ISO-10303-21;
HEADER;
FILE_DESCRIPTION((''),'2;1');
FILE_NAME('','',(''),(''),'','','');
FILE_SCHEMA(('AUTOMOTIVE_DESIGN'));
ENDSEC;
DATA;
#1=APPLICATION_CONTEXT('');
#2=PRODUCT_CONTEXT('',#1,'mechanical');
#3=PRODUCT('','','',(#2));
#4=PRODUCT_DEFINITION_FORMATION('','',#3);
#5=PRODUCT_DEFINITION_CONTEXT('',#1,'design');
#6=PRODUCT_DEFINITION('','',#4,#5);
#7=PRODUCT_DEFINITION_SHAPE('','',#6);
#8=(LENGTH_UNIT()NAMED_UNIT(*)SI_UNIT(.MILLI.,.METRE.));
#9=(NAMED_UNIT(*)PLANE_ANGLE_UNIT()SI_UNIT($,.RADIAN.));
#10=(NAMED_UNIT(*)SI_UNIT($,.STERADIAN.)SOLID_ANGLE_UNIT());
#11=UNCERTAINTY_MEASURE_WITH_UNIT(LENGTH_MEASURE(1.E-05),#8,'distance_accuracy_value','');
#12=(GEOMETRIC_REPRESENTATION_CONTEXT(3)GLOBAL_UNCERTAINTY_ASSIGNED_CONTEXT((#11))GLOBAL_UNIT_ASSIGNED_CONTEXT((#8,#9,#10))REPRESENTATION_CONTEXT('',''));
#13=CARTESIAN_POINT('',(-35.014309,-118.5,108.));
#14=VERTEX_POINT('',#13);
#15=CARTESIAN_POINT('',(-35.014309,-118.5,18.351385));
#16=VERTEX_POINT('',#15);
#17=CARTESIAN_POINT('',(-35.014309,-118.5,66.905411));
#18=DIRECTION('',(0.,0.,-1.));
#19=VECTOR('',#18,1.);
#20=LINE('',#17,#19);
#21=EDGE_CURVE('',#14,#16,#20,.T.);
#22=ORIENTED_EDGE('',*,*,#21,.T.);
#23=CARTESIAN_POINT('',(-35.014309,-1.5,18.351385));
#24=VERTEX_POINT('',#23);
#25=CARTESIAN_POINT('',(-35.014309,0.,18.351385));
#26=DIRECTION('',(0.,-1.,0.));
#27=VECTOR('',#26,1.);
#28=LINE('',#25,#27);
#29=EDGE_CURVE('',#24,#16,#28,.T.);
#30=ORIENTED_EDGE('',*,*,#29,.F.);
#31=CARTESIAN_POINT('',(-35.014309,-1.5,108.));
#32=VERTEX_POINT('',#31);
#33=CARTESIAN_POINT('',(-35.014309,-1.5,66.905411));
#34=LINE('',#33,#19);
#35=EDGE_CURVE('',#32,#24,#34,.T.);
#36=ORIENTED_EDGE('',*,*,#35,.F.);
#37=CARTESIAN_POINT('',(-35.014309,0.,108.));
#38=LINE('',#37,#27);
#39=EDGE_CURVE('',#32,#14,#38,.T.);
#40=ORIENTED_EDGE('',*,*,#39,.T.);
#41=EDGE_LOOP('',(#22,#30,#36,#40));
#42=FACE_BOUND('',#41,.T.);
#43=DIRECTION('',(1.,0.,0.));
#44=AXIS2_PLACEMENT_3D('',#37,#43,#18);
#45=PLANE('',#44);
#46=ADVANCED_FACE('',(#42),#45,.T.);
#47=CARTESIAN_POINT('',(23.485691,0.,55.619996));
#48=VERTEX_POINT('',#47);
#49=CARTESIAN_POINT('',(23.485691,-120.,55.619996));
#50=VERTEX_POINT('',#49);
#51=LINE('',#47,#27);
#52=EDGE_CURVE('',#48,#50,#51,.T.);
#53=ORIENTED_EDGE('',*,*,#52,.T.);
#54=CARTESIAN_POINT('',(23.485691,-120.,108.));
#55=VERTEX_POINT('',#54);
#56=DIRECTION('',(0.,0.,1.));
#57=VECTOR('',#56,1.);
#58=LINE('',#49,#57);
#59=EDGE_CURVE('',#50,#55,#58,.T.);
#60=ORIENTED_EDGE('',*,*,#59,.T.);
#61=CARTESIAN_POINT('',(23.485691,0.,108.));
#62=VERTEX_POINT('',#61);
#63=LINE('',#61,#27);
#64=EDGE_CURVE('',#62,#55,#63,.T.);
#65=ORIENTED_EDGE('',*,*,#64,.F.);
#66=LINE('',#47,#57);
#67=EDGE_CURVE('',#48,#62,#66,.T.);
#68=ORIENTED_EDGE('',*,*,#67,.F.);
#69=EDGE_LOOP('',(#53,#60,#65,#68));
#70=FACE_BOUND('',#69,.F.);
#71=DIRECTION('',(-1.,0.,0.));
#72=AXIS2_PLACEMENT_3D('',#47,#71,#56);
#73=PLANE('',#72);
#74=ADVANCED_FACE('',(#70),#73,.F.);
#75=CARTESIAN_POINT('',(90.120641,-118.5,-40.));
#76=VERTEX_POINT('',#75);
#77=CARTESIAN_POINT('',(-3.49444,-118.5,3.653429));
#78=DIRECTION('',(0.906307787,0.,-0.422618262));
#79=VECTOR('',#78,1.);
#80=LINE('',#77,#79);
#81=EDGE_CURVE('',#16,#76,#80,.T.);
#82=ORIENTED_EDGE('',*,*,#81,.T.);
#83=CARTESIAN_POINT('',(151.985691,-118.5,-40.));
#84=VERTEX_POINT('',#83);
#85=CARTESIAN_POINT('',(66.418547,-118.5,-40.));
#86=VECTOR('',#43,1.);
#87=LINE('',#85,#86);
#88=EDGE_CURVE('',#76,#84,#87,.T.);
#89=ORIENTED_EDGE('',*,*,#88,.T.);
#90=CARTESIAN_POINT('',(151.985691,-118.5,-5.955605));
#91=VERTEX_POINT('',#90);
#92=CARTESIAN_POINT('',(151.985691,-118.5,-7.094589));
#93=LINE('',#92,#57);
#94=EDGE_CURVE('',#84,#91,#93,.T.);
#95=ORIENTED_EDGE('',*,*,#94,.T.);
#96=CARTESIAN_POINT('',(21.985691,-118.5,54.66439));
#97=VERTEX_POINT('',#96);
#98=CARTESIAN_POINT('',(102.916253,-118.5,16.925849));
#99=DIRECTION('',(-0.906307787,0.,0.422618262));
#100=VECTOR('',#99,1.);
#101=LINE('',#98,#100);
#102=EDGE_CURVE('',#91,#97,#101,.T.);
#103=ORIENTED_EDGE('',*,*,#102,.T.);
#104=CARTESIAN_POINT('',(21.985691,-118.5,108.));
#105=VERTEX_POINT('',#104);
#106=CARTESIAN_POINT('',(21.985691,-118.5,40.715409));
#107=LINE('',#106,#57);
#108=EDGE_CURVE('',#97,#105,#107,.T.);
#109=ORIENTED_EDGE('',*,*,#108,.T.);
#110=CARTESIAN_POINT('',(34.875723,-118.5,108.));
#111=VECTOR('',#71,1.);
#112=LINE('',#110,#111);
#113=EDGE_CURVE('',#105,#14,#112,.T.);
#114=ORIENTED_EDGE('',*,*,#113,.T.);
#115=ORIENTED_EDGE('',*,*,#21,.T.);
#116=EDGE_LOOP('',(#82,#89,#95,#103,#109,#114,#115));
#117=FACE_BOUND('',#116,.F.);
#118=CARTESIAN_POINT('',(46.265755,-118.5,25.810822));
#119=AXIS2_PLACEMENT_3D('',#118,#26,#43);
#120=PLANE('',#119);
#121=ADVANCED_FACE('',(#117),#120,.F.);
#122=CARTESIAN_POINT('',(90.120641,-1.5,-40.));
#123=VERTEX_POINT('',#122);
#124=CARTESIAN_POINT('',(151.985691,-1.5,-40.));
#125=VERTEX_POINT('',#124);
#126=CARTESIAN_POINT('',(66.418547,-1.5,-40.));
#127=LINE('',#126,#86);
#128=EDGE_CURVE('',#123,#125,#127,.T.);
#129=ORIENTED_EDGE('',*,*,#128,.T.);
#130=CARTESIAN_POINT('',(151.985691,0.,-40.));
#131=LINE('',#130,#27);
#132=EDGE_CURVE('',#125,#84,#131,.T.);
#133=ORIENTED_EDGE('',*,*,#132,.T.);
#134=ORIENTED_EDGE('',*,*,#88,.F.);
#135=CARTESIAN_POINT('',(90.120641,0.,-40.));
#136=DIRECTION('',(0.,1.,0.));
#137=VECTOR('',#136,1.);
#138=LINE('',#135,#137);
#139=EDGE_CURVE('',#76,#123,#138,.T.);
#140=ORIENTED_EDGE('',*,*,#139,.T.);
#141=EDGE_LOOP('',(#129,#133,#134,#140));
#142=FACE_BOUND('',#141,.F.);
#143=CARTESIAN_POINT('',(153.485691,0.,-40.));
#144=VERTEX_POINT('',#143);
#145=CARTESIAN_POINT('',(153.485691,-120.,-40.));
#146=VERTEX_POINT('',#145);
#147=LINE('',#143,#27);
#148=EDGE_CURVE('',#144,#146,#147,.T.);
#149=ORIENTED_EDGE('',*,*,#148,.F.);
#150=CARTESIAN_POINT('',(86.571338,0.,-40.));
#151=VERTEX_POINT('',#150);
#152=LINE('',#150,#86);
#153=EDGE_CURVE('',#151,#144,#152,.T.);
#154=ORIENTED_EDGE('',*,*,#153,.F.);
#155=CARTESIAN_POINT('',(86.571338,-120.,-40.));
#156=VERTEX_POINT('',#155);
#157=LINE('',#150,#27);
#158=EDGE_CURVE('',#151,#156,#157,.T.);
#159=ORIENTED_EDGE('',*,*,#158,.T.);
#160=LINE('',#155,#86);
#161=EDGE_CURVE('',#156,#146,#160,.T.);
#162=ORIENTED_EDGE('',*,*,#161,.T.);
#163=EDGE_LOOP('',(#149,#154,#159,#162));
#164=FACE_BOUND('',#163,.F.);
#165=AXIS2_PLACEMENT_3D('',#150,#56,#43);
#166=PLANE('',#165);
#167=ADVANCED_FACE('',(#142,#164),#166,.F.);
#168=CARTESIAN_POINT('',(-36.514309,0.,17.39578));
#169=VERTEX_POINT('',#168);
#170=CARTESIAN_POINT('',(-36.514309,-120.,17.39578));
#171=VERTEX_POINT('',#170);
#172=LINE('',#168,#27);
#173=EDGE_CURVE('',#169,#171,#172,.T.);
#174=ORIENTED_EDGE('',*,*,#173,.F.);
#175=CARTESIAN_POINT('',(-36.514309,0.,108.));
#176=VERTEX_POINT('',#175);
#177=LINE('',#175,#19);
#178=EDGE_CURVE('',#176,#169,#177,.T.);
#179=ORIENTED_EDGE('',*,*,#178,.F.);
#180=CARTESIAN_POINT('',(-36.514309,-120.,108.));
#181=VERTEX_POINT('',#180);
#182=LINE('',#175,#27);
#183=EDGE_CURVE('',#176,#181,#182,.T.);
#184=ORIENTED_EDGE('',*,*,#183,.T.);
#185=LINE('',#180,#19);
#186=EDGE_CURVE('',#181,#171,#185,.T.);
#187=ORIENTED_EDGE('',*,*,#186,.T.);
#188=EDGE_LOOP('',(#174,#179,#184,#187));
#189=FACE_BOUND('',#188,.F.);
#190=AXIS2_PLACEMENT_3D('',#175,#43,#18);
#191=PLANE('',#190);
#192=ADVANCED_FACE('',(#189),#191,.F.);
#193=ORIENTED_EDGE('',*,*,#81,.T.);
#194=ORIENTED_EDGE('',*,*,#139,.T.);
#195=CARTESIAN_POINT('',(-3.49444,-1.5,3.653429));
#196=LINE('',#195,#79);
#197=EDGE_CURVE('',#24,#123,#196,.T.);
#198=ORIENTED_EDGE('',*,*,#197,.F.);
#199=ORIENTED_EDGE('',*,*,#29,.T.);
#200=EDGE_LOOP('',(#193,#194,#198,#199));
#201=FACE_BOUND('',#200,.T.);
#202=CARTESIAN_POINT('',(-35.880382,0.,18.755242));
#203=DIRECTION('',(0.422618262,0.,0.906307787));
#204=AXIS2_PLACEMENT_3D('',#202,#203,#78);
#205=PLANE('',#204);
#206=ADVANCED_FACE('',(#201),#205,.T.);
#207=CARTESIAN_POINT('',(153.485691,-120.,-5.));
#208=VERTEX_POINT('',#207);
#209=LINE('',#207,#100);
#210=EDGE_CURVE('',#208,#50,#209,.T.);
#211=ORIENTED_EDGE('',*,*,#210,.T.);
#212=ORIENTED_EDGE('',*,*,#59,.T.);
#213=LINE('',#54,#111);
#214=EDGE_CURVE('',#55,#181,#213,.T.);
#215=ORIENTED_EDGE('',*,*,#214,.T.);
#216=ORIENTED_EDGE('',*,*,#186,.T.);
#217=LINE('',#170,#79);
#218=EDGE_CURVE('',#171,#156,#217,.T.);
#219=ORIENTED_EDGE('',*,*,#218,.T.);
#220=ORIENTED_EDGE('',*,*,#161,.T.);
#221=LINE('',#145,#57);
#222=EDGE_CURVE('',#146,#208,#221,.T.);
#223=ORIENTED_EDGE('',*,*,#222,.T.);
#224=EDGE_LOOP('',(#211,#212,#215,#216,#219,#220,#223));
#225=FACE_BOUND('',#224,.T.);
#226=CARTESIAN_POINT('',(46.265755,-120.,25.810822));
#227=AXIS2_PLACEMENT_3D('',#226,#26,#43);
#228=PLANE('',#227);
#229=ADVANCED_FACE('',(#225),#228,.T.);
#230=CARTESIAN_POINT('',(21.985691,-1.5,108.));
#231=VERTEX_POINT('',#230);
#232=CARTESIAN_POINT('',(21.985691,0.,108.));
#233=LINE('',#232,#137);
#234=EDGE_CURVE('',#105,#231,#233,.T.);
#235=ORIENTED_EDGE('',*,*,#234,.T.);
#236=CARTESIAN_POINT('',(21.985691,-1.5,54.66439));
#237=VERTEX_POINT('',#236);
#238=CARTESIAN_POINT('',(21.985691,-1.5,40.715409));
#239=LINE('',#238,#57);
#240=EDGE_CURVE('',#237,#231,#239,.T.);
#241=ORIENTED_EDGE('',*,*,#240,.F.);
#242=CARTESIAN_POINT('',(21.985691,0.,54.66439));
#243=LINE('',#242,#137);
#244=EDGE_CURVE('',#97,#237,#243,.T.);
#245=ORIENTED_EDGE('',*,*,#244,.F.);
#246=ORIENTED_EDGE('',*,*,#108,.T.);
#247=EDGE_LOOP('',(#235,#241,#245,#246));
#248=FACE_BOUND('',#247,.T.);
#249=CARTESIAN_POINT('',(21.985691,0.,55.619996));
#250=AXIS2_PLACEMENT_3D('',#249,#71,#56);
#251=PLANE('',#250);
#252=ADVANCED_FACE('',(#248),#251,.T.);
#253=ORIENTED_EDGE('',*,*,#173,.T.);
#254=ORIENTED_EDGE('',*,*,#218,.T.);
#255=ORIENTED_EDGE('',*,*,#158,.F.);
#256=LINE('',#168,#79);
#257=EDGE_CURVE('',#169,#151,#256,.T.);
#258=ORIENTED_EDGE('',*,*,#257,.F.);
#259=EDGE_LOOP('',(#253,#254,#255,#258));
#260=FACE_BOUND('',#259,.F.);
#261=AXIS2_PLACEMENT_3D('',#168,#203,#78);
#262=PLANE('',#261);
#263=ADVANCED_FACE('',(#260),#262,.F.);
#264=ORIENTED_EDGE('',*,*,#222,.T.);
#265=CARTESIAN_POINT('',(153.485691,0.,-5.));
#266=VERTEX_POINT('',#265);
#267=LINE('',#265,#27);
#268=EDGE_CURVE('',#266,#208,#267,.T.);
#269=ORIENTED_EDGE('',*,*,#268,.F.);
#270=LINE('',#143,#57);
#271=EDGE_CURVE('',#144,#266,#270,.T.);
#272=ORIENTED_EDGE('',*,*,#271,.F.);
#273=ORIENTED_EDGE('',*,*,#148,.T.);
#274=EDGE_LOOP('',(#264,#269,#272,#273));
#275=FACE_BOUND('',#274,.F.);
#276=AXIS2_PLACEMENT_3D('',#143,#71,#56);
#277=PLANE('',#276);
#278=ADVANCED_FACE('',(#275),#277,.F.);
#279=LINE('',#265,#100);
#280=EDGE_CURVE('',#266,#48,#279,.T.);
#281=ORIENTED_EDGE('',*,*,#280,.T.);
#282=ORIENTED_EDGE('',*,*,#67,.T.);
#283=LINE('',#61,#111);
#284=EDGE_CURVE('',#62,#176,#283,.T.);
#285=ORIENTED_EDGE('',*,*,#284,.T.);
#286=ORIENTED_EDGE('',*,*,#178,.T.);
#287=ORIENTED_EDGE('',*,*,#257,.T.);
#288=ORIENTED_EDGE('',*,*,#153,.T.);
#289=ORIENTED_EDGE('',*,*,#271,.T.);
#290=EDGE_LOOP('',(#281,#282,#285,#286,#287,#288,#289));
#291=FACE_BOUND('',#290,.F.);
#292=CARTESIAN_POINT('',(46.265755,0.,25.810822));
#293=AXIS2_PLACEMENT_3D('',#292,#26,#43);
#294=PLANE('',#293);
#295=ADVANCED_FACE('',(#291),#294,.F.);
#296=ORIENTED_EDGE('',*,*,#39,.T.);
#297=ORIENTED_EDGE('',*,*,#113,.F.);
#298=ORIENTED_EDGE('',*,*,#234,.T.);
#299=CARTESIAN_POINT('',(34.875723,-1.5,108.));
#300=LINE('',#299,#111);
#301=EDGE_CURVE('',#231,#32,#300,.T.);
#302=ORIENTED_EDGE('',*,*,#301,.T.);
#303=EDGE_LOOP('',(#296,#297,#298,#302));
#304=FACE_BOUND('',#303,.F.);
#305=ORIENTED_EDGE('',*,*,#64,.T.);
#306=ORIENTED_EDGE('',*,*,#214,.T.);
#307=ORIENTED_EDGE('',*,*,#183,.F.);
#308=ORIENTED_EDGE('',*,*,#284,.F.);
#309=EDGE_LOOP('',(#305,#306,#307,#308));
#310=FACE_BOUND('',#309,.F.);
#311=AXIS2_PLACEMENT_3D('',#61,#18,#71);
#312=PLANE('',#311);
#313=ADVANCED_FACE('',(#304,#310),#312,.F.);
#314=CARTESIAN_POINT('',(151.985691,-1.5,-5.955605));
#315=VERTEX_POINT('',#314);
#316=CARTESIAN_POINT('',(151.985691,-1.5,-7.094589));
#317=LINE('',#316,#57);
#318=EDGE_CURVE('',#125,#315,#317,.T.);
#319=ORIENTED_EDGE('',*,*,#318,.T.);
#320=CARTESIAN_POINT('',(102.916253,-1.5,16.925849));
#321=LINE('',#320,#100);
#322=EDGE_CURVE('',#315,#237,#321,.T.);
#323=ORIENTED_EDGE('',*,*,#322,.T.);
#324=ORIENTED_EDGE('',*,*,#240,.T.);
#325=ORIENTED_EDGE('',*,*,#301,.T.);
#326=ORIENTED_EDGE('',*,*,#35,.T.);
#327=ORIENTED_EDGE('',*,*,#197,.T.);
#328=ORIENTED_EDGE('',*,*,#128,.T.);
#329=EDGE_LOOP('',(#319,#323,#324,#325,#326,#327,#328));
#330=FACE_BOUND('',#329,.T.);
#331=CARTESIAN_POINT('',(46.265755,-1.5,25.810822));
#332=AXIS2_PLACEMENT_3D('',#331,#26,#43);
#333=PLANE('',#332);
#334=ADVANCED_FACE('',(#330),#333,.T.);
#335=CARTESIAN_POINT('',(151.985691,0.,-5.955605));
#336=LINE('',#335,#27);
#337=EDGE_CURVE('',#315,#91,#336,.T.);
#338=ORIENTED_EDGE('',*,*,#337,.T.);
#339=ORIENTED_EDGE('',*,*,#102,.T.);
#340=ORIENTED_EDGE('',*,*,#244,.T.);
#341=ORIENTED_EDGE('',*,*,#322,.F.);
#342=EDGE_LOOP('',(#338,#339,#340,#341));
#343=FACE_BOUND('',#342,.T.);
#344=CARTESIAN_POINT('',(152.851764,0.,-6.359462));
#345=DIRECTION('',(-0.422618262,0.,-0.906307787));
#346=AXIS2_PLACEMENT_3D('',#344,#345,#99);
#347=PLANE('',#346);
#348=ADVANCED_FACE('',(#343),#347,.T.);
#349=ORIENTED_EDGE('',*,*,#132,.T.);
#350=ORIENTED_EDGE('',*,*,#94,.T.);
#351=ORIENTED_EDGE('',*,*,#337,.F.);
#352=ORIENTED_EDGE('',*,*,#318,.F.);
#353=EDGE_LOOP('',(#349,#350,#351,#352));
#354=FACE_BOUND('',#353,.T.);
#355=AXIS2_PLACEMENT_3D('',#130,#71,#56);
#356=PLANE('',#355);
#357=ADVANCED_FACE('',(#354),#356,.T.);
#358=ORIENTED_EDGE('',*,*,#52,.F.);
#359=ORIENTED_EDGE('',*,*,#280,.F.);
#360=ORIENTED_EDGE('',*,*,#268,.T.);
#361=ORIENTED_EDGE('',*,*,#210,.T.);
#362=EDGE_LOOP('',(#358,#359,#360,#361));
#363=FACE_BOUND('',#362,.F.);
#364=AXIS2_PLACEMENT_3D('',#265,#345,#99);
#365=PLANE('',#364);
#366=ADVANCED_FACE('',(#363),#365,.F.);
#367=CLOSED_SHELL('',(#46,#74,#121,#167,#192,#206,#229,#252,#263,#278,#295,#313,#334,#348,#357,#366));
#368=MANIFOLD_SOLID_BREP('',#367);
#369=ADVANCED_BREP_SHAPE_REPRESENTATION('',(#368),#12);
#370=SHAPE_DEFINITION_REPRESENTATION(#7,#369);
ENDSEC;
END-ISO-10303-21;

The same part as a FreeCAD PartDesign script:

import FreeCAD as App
import Part
import Sketcher
from FreeCAD import Vector
Q = App.Units.Quantity


def faces_at(feature, points):
    """Names of the faces that lie closest to the given points."""
    faces = feature.Shape.Faces
    near = lambda p: min(range(len(faces)), key=lambda i: faces[i].distToShape(Part.Vertex(*p))[0])
    return sorted({f"Face{near(p) + 1}" for p in points})

doc = App.newDocument("Part")
body = doc.addObject("PartDesign::Body", "Body")

# Sketch on XZ plane
sketch1 = body.newObject("Sketcher::SketchObject", "Sketch")
sketch1.AttachmentSupport = (doc.getObject("XZ_Plane"), [""])
sketch1.MapMode = "FlatFace"
sketch1.addGeometry(Part.LineSegment(Vector(23.485691, 108, 0), Vector(-36.514309, 108, 0)), False)
sketch1.addGeometry(Part.LineSegment(Vector(-36.514309, 108, 0), Vector(-36.514309, 17.39578, 0)), False)
sketch1.addGeometry(Part.LineSegment(Vector(-36.514309, 17.39578, 0), Vector(86.571338, -40, 0)), False)
sketch1.addGeometry(Part.LineSegment(Vector(86.571338, -40, 0), Vector(153.485691, -40, 0)), False)
sketch1.addGeometry(Part.LineSegment(Vector(153.485691, -40, 0), Vector(153.485691, -5, 0)), False)
sketch1.addGeometry(Part.LineSegment(Vector(153.485691, -5, 0), Vector(23.485691, 55.619996, 0)), False)
sketch1.addGeometry(Part.LineSegment(Vector(23.485691, 55.619996, 0), Vector(23.485691, 108, 0)), False)
sketch1.addConstraint(Sketcher.Constraint("Coincident", 0, 2, 1, 1))
sketch1.addConstraint(Sketcher.Constraint("Coincident", 1, 2, 2, 1))
sketch1.addConstraint(Sketcher.Constraint("Coincident", 2, 2, 3, 1))
sketch1.addConstraint(Sketcher.Constraint("Coincident", 3, 2, 4, 1))
sketch1.addConstraint(Sketcher.Constraint("Coincident", 4, 2, 5, 1))
sketch1.addConstraint(Sketcher.Constraint("Coincident", 5, 2, 6, 1))
sketch1.addConstraint(Sketcher.Constraint("Coincident", 6, 2, 0, 1))
sketch1.addConstraint(Sketcher.Constraint("Horizontal", 0))
sketch1.addConstraint(Sketcher.Constraint("Vertical", 1))
sketch1.addConstraint(Sketcher.Constraint("Horizontal", 3))
sketch1.addConstraint(Sketcher.Constraint("Vertical", 4))
sketch1.addConstraint(Sketcher.Constraint("Vertical", 6))
sketch1.addConstraint(Sketcher.Constraint("Parallel", 2, 5))
sketch1.addConstraint(Sketcher.Constraint("DistanceX", 0, 2, 0, 1, 60.0))
sketch1.addConstraint(Sketcher.Constraint("DistanceY", 4, 1, 4, 2, 35.0))
sketch1.addConstraint(Sketcher.Constraint("Angle", 2, Q("-25 deg")))
sketch1.addConstraint(Sketcher.Constraint("DistanceY", -1, 1, 0, 2, 108.0))
sketch1.addConstraint(Sketcher.Constraint("DistanceY", 2, 2, -1, 1, 40.0))
sketch1.addConstraint(Sketcher.Constraint("DistanceX", 1, 2, 3, 2, 190.0))
sketch1.addConstraint(Sketcher.Constraint("DistanceY", 1, 2, 1, 1, 90.60422))
sketch1.addConstraint(Sketcher.Constraint("DistanceX", 0, 2, -1, 1, 36.514309))
pad1 = body.newObject("PartDesign::Pad", "Pad")
pad1.Profile = sketch1
pad1.Length = 120
doc.recompute()

thickness = body.newObject("PartDesign::Thickness", "Thickness")
thickness.Base = (pad1, faces_at(pad1, [(-6.514, -60, 108), (120.029, -60, -40)]))
thickness.Value = 1.5
thickness.Reversed = True
thickness.Join = "Intersection"

doc.recompute()
